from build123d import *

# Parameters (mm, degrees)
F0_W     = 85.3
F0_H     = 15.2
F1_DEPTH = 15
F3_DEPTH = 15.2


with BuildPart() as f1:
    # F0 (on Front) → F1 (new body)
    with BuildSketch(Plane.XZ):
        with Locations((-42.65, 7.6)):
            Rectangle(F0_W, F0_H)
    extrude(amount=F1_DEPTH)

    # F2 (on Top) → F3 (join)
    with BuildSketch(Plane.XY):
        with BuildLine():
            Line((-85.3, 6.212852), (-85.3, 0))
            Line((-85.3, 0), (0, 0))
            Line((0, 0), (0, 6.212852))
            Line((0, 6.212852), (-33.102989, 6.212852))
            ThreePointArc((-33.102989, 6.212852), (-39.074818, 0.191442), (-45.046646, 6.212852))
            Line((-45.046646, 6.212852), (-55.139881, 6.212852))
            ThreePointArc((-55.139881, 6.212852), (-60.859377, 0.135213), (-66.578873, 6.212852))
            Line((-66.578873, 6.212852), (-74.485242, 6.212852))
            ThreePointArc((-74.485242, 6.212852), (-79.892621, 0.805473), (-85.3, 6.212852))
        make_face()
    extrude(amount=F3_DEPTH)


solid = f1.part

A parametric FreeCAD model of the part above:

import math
import FreeCAD as App
import Part
import Sketcher
from FreeCAD import Vector


def add_polygon(sketch, points):
    """Adds a closed chain of lines whose ends are joined by coincident constraints."""
    first, n = sketch.GeometryCount, len(points)
    for a, b in zip(points, points[1:] + points[:1]):
        sketch.addGeometry(Part.LineSegment(App.Vector(*a, 0), App.Vector(*b, 0)), False)
    for i in range(n):
        sketch.addConstraint(Sketcher.Constraint("Coincident", first + i, 2, first + (i + 1) % n, 1))

doc = App.newDocument("Part")
body = doc.addObject("PartDesign::Body", "Body")

# Sketch on XZ plane
sketch1 = body.newObject("Sketcher::SketchObject", "Sketch")
sketch1.AttachmentSupport = (doc.getObject("XZ_Plane"), [""])
sketch1.MapMode = "FlatFace"
add_polygon(sketch1, [(-85.3, 15.2), (-85.3, 0), (0, 0), (0, 15.2)])  # lines 0-3
sketch1.addConstraint(Sketcher.Constraint("Vertical", 0))
sketch1.addConstraint(Sketcher.Constraint("Horizontal", 1))
sketch1.addConstraint(Sketcher.Constraint("Vertical", 2))
sketch1.addConstraint(Sketcher.Constraint("Horizontal", 3))
sketch1.addConstraint(Sketcher.Constraint("Coincident", 1, 2, -1, 1))
sketch1.addConstraint(Sketcher.Constraint("DistanceX", 1, 1, 1, 2, 85.3))
sketch1.addConstraint(Sketcher.Constraint("DistanceY", 0, 2, 0, 1, 15.2))
pad1 = body.newObject("PartDesign::Pad", "Pad")
pad1.Profile = sketch1
pad1.Length = 15

# Sketch on XY plane
sketch2 = body.newObject("Sketcher::SketchObject", "Sketch001")
sketch2.AttachmentSupport = (doc.getObject("XY_Plane"), [""])
sketch2.MapMode = "FlatFace"
sketch2.addGeometry(Part.LineSegment(Vector(-85.3, 6.212852, 0), Vector(-85.3, 0, 0)), False)
sketch2.addGeometry(Part.LineSegment(Vector(-85.3, 0, 0), Vector(0, 0, 0)), False)
sketch2.addGeometry(Part.LineSegment(Vector(0, 0, 0), Vector(0, 6.212852, 0)), False)
sketch2.addGeometry(Part.LineSegment(Vector(0, 6.212852, 0), Vector(-33.102989, 6.212852, 0)), False)
sketch2.addGeometry(Part.ArcOfCircle(Part.Circle(Vector(-39.074818, 6.163475, 0), Vector(0, 0, 1), 5.972033), math.radians(179.526267), math.radians(360.473733)), False)
sketch2.addGeometry(Part.LineSegment(Vector(-45.046646, 6.212852, 0), Vector(-55.139881, 6.212852, 0)), False)
sketch2.addGeometry(Part.ArcOfCircle(Part.Circle(Vector(-60.859377, 5.865261, 0), Vector(0, 0, 1), 5.730048), math.radians(176.522243), math.radians(363.477757)), False)
sketch2.addGeometry(Part.LineSegment(Vector(-66.578873, 6.212852, 0), Vector(-74.485242, 6.212852, 0)), False)
sketch2.addGeometry(Part.ArcOfCircle(Part.Circle(Vector(-79.892621, 6.212852, 0), Vector(0, 0, 1), 5.407379), math.radians(180), math.radians(360)), False)
sketch2.addConstraint(Sketcher.Constraint("Coincident", 0, 2, 1, 1))
sketch2.addConstraint(Sketcher.Constraint("Coincident", 1, 2, 2, 1))
sketch2.addConstraint(Sketcher.Constraint("Coincident", 2, 2, 3, 1))
sketch2.addConstraint(Sketcher.Constraint("Coincident", 3, 2, 4, 2))
sketch2.addConstraint(Sketcher.Constraint("Coincident", 4, 1, 5, 1))
sketch2.addConstraint(Sketcher.Constraint("Coincident", 5, 2, 6, 2))
sketch2.addConstraint(Sketcher.Constraint("Coincident", 6, 1, 7, 1))
sketch2.addConstraint(Sketcher.Constraint("Coincident", 7, 2, 8, 2))
sketch2.addConstraint(Sketcher.Constraint("Tangent", 8, 1, 0, 1))
sketch2.addConstraint(Sketcher.Constraint("Vertical", 0))
sketch2.addConstraint(Sketcher.Constraint("Horizontal", 1))
sketch2.addConstraint(Sketcher.Constraint("Vertical", 2))
sketch2.addConstraint(Sketcher.Constraint("Horizontal", 3))
sketch2.addConstraint(Sketcher.Constraint("Horizontal", 5))
sketch2.addConstraint(Sketcher.Constraint("Horizontal", 7))
sketch2.addConstraint(Sketcher.Constraint("Coincident", 1, 2, -1, 1))
sketch2.addConstraint(Sketcher.Constraint("Horizontal", 8, 3, 2, 2))
sketch2.addConstraint(Sketcher.Constraint("Horizontal", 3, 2, 4, 1))
sketch2.addConstraint(Sketcher.Constraint("Horizontal", 5, 2, 6, 1))
sketch2.addConstraint(Sketcher.Constraint("DistanceX", 1, 1, 1, 2, 85.3))
sketch2.addConstraint(Sketcher.Constraint("Radius", 6, 5.730048))
sketch2.addConstraint(Sketcher.Constraint("Radius", 8, 5.407379))
sketch2.addConstraint(Sketcher.Constraint("Radius", 4, 5.972033))
sketch2.addConstraint(Sketcher.Constraint("DistanceX", 3, 2, 3, 1, 33.102989))
sketch2.addConstraint(Sketcher.Constraint("DistanceX", 7, 2, 7, 1, 7.906369))
sketch2.addConstraint(Sketcher.Constraint("DistanceY", 0, 2, 0, 1, 6.212852))
sketch2.addConstraint(Sketcher.Constraint("DistanceX", 5, 2, 5, 1, 10.093235))
sketch2.addConstraint(Sketcher.Constraint("DistanceY", -1, 1, 6, 3, 5.865261))
pad2 = body.newObject("PartDesign::Pad", "Pad001")
pad2.Profile = sketch2
pad2.Length = 15.2

doc.recompute()
